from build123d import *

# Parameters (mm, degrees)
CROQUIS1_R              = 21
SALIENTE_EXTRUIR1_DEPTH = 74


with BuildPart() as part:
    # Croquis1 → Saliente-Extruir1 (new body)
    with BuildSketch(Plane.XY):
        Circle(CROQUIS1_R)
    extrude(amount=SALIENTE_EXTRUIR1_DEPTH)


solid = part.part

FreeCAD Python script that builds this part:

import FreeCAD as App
import Part
import Sketcher

V = App.Vector
Q = App.Units.Quantity

doc = App.newDocument("Part")
body = doc.addObject("PartDesign::Body", "Body")

sketch1 = body.newObject("Sketcher::SketchObject", "Sketch")
sketch1.AttachmentSupport = (doc.getObject("XY_Plane"), [""])
sketch1.MapMode = "FlatFace"
sketch1.addGeometry(Part.Circle(V(0, 0, 0), V(0, 0, 1), 21), False)
sketch1.addConstraint([
    Sketcher.Constraint("Coincident", 0, 3, -1, 1),
    Sketcher.Constraint("Diameter", 0, Q("42 mm")),
])
pad1 = body.newObject("PartDesign::Pad", "Pad")
pad1.Profile = sketch1
pad1.Length = 74

doc.recompute()
